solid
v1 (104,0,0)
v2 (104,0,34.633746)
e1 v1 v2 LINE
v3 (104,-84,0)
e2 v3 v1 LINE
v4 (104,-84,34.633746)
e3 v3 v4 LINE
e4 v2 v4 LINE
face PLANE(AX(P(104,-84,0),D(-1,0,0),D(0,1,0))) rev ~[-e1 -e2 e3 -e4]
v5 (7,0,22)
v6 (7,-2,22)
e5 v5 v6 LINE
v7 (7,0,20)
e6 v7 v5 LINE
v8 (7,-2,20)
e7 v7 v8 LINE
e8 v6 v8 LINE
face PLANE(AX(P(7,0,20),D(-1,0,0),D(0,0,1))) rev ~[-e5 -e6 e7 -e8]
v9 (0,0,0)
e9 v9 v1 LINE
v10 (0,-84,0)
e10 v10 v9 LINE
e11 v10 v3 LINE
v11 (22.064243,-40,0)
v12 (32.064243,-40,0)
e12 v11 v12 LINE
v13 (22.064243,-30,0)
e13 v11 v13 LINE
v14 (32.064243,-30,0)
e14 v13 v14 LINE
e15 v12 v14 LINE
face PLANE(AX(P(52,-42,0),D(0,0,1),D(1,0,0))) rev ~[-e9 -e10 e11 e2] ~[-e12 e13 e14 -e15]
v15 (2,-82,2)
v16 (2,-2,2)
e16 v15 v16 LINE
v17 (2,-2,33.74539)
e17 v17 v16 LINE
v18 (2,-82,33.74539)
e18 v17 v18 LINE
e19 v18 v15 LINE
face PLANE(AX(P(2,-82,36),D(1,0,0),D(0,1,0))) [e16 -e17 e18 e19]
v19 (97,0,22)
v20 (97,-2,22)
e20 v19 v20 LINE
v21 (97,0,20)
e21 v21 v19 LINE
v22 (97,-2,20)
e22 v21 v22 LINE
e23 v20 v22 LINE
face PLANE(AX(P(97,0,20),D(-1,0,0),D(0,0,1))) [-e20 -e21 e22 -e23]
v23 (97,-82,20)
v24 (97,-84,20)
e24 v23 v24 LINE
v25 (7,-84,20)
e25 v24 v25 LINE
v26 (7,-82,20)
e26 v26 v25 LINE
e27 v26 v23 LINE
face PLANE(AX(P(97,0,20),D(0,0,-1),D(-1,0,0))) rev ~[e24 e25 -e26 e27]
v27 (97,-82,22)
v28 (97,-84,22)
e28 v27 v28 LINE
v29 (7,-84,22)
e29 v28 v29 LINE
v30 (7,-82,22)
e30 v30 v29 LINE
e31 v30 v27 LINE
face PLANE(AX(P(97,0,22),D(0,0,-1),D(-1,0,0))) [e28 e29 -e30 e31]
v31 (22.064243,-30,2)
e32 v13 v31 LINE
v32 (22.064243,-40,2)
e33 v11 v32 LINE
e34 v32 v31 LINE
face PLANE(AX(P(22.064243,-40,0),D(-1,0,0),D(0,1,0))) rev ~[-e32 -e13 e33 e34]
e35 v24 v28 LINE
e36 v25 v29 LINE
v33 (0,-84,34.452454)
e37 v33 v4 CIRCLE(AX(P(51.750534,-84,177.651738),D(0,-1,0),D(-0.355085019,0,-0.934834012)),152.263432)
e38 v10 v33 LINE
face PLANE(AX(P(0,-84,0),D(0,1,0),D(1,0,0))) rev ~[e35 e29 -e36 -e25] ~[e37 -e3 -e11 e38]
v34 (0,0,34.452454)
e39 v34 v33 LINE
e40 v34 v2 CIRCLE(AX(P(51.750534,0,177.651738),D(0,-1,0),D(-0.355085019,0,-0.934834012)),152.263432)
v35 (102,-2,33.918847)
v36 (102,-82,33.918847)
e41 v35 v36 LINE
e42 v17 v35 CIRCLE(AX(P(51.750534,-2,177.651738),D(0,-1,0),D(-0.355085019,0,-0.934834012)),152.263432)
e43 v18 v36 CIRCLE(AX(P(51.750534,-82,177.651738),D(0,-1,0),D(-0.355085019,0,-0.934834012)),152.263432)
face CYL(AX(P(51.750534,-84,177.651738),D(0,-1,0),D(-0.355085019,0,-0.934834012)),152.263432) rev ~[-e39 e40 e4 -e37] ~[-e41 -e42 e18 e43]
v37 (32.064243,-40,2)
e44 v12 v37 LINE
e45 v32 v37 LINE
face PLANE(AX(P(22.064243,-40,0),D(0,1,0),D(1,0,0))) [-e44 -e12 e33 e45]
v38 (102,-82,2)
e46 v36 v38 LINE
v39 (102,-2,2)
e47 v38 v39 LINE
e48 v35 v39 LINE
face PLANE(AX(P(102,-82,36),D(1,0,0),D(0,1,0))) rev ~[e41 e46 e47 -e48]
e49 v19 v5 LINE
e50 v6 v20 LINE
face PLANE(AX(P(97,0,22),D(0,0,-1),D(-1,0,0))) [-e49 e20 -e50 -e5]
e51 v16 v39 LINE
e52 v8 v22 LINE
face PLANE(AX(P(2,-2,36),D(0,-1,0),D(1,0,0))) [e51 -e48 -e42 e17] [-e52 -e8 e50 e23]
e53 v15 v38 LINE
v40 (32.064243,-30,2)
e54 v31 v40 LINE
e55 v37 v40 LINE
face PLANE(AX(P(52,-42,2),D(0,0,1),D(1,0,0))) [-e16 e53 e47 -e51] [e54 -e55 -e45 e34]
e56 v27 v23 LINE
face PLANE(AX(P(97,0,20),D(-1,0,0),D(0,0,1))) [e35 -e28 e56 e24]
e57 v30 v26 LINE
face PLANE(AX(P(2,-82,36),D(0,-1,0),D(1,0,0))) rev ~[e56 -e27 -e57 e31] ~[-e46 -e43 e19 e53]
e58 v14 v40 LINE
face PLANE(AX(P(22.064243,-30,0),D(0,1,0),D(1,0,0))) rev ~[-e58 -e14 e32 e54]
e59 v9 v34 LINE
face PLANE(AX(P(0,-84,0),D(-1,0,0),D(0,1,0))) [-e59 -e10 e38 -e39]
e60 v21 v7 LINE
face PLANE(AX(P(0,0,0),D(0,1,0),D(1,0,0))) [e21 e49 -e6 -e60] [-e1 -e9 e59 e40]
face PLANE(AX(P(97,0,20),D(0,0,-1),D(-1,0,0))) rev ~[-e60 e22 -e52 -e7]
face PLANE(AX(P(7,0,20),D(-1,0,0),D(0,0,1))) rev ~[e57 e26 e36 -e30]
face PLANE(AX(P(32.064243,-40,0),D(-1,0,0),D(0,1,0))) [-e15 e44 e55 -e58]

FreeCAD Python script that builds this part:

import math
import FreeCAD as App
import Part
import Sketcher
Q = App.Units.Quantity


def add_polygon(sketch, points):
    """Adds a closed chain of lines whose ends are joined by coincident constraints."""
    first, n = sketch.GeometryCount, len(points)
    for a, b in zip(points, points[1:] + points[:1]):
        sketch.addGeometry(Part.LineSegment(App.Vector(*a, 0), App.Vector(*b, 0)), False)
    for i in range(n):
        sketch.addConstraint(Sketcher.Constraint("Coincident", first + i, 2, first + (i + 1) % n, 1))

doc = App.newDocument("Part")
params = doc.addObject("Spreadsheet::Sheet", "Params")
for row, (alias, value) in enumerate([
    ("sketch1_width", "104 mm"),
    ("sketch1_width2", "10 mm"),
    ("sketch1_height", "84 mm"),
    ("pad1_length", "36 mm"),
    ("sketch2_width", "100 mm"),
    ("sketch2_height", "80 mm"),
    ("pocket1_length", "34 mm"),
    ("sketch4_width", "90 mm"),
    ("sketch4_height", "2 mm"),
], start=1):
    params.set(f"A{row}", alias)
    params.set(f"B{row}", "=" + value)
    params.setAlias(f"B{row}", alias)

body = doc.addObject("PartDesign::Body", "Body")

# Sketch on XY plane
sketch1 = body.newObject("Sketcher::SketchObject", "Sketch")
sketch1.AttachmentSupport = (doc.getObject("XY_Plane"), [""])
sketch1.MapMode = "FlatFace"
add_polygon(sketch1, [(0, 0), (0, -84), (104, -84), (104, 0)])  # lines 0-3
add_polygon(sketch1, [(32, -40), (22, -40), (22, -30), (32, -30)])  # lines 4-7
sketch1.addConstraint([
    Sketcher.Constraint("Vertical", 0),
    Sketcher.Constraint("Horizontal", 1),
    Sketcher.Constraint("Vertical", 2),
    Sketcher.Constraint("Horizontal", 3),
    Sketcher.Constraint("Horizontal", 4),
    Sketcher.Constraint("Vertical", 5),
    Sketcher.Constraint("Horizontal", 6),
    Sketcher.Constraint("Vertical", 7),
    Sketcher.Constraint("Coincident", 3, 2, -1, 1),
    Sketcher.Constraint("Equal", 6, 5),
    Sketcher.Constraint("DistanceX", 1, 1, 1, 2, Q("104 mm")),
    Sketcher.Constraint("DistanceX", 4, 2, 4, 1, Q("10 mm")),
    Sketcher.Constraint("DistanceY", 0, 2, 0, 1, Q("84 mm")),
    Sketcher.Constraint("DistanceY", 4, 2, -1, 1, Q("40 mm")),
    Sketcher.Constraint("DistanceX", -1, 1, 4, 2, Q("22.064243 mm")),
])
sketch1.setExpression("Constraints[18]", "Params.sketch1_width")
sketch1.setExpression("Constraints[19]", "Params.sketch1_width2")
sketch1.setExpression("Constraints[20]", "Params.sketch1_height")
pad1 = body.newObject("PartDesign::Pad", "Pad")
pad1.Profile = sketch1
pad1.setExpression("Length", "Params.pad1_length")

# Sketch on XY plane
sketch2 = body.newObject("Sketcher::SketchObject", "Sketch001")
sketch2.AttachmentSupport = (doc.getObject("XY_Plane"), [""])
sketch2.MapMode = "FlatFace"
sketch2.AttachmentOffset = App.Placement(App.Vector(0, 0, 36), App.Rotation())
add_polygon(sketch2, [(2, -2), (2, -82), (102, -82), (102, -2)])  # lines 0-3
sketch2.addConstraint([
    Sketcher.Constraint("Vertical", 0),
    Sketcher.Constraint("Horizontal", 1),
    Sketcher.Constraint("Vertical", 2),
    Sketcher.Constraint("Horizontal", 3),
    Sketcher.Constraint("DistanceX", 1, 1, 1, 2, Q("100 mm")),
    Sketcher.Constraint("DistanceY", 0, 2, 0, 1, Q("80 mm")),
    Sketcher.Constraint("DistanceX", -1, 1, 0, 2, Q("2 mm")),
    Sketcher.Constraint("DistanceY", 0, 2, -1, 1, Q("82 mm")),
])
sketch2.setExpression("Constraints[8]", "Params.sketch2_width")
sketch2.setExpression("Constraints[9]", "Params.sketch2_height")
pocket1 = body.newObject("PartDesign::Pocket", "Pocket")
pocket1.Profile = sketch2
pocket1.setExpression("Length", "Params.pocket1_length")

# Sketch on XZ plane
sketch3 = body.newObject("Sketcher::SketchObject", "Sketch002")
sketch3.AttachmentSupport = (doc.getObject("XZ_Plane"), [""])
sketch3.MapMode = "FlatFace"
sketch3.AttachmentOffset = App.Placement(App.Vector(0, 0, 84), App.Rotation())
sketch3.addGeometry([
    Part.ArcOfCircle(Part.Circle(App.Vector(52, 178, 0), App.Vector(0, 0, 1), 152), math.radians(-111), math.radians(-69)),
    Part.LineSegment(App.Vector(106, 35, 0), App.Vector(107, 50, 0)),
    Part.LineSegment(App.Vector(107, 50, 0), App.Vector(-2, 50, 0)),
    Part.LineSegment(App.Vector(-2, 50, 0), App.Vector(-2, 35, 0)),
], False)
sketch3.addConstraint([
    Sketcher.Constraint("Coincident", 0, 2, 1, 1),
    Sketcher.Constraint("Coincident", 1, 2, 2, 1),
    Sketcher.Constraint("Coincident", 2, 2, 3, 1),
    Sketcher.Constraint("Coincident", 3, 2, 0, 1),
    Sketcher.Constraint("Horizontal", 2),
    Sketcher.Constraint("Vertical", 3),
    Sketcher.Constraint("Horizontal", 0, 2, 3, 2),
    Sketcher.Constraint("Radius", 0, Q("152.263432 mm")),
    Sketcher.Constraint("DistanceX", 2, 2, 2, 1, Q("109.091488 mm")),
    Sketcher.Constraint("Distance", 1, Q("14.298379 mm")),
    Sketcher.Constraint("DistanceY", 3, 2, 3, 1, Q("14.266212 mm")),
    Sketcher.Constraint("DistanceX", -1, 1, 1, 2, Q("106.775558 mm")),
    Sketcher.Constraint("DistanceY", -1, 1, 0, 3, Q("177.651738 mm")),
])
pocket2 = body.newObject("PartDesign::Pocket", "Pocket001")
pocket2.Profile = sketch3
pocket2.Type = "ThroughAll"

# Sketch on XZ plane
sketch4 = body.newObject("Sketcher::SketchObject", "Sketch003")
sketch4.AttachmentSupport = (doc.getObject("XZ_Plane"), [""])
sketch4.MapMode = "FlatFace"
add_polygon(sketch4, [(97, 22), (97, 20), (7, 20), (7, 22)])  # lines 0-3
sketch4.addConstraint([
    Sketcher.Constraint("Vertical", 0),
    Sketcher.Constraint("Horizontal", 1),
    Sketcher.Constraint("Vertical", 2),
    Sketcher.Constraint("Horizontal", 3),
    Sketcher.Constraint("DistanceX", 1, 2, 1, 1, Q("90 mm")),
    Sketcher.Constraint("DistanceY", 0, 2, 0, 1, Q("2 mm")),
    Sketcher.Constraint("DistanceX", -1, 1, 0, 2, Q("97 mm")),
    Sketcher.Constraint("DistanceY", -1, 1, 0, 2, Q("20 mm")),
])
sketch4.setExpression("Constraints[8]", "Params.sketch4_width")
sketch4.setExpression("Constraints[9]", "Params.sketch4_height")
pocket3 = body.newObject("PartDesign::Pocket", "Pocket002")
pocket3.Profile = sketch4
pocket3.Type = "ThroughAll"
pocket3.Reversed = True

doc.recompute()
